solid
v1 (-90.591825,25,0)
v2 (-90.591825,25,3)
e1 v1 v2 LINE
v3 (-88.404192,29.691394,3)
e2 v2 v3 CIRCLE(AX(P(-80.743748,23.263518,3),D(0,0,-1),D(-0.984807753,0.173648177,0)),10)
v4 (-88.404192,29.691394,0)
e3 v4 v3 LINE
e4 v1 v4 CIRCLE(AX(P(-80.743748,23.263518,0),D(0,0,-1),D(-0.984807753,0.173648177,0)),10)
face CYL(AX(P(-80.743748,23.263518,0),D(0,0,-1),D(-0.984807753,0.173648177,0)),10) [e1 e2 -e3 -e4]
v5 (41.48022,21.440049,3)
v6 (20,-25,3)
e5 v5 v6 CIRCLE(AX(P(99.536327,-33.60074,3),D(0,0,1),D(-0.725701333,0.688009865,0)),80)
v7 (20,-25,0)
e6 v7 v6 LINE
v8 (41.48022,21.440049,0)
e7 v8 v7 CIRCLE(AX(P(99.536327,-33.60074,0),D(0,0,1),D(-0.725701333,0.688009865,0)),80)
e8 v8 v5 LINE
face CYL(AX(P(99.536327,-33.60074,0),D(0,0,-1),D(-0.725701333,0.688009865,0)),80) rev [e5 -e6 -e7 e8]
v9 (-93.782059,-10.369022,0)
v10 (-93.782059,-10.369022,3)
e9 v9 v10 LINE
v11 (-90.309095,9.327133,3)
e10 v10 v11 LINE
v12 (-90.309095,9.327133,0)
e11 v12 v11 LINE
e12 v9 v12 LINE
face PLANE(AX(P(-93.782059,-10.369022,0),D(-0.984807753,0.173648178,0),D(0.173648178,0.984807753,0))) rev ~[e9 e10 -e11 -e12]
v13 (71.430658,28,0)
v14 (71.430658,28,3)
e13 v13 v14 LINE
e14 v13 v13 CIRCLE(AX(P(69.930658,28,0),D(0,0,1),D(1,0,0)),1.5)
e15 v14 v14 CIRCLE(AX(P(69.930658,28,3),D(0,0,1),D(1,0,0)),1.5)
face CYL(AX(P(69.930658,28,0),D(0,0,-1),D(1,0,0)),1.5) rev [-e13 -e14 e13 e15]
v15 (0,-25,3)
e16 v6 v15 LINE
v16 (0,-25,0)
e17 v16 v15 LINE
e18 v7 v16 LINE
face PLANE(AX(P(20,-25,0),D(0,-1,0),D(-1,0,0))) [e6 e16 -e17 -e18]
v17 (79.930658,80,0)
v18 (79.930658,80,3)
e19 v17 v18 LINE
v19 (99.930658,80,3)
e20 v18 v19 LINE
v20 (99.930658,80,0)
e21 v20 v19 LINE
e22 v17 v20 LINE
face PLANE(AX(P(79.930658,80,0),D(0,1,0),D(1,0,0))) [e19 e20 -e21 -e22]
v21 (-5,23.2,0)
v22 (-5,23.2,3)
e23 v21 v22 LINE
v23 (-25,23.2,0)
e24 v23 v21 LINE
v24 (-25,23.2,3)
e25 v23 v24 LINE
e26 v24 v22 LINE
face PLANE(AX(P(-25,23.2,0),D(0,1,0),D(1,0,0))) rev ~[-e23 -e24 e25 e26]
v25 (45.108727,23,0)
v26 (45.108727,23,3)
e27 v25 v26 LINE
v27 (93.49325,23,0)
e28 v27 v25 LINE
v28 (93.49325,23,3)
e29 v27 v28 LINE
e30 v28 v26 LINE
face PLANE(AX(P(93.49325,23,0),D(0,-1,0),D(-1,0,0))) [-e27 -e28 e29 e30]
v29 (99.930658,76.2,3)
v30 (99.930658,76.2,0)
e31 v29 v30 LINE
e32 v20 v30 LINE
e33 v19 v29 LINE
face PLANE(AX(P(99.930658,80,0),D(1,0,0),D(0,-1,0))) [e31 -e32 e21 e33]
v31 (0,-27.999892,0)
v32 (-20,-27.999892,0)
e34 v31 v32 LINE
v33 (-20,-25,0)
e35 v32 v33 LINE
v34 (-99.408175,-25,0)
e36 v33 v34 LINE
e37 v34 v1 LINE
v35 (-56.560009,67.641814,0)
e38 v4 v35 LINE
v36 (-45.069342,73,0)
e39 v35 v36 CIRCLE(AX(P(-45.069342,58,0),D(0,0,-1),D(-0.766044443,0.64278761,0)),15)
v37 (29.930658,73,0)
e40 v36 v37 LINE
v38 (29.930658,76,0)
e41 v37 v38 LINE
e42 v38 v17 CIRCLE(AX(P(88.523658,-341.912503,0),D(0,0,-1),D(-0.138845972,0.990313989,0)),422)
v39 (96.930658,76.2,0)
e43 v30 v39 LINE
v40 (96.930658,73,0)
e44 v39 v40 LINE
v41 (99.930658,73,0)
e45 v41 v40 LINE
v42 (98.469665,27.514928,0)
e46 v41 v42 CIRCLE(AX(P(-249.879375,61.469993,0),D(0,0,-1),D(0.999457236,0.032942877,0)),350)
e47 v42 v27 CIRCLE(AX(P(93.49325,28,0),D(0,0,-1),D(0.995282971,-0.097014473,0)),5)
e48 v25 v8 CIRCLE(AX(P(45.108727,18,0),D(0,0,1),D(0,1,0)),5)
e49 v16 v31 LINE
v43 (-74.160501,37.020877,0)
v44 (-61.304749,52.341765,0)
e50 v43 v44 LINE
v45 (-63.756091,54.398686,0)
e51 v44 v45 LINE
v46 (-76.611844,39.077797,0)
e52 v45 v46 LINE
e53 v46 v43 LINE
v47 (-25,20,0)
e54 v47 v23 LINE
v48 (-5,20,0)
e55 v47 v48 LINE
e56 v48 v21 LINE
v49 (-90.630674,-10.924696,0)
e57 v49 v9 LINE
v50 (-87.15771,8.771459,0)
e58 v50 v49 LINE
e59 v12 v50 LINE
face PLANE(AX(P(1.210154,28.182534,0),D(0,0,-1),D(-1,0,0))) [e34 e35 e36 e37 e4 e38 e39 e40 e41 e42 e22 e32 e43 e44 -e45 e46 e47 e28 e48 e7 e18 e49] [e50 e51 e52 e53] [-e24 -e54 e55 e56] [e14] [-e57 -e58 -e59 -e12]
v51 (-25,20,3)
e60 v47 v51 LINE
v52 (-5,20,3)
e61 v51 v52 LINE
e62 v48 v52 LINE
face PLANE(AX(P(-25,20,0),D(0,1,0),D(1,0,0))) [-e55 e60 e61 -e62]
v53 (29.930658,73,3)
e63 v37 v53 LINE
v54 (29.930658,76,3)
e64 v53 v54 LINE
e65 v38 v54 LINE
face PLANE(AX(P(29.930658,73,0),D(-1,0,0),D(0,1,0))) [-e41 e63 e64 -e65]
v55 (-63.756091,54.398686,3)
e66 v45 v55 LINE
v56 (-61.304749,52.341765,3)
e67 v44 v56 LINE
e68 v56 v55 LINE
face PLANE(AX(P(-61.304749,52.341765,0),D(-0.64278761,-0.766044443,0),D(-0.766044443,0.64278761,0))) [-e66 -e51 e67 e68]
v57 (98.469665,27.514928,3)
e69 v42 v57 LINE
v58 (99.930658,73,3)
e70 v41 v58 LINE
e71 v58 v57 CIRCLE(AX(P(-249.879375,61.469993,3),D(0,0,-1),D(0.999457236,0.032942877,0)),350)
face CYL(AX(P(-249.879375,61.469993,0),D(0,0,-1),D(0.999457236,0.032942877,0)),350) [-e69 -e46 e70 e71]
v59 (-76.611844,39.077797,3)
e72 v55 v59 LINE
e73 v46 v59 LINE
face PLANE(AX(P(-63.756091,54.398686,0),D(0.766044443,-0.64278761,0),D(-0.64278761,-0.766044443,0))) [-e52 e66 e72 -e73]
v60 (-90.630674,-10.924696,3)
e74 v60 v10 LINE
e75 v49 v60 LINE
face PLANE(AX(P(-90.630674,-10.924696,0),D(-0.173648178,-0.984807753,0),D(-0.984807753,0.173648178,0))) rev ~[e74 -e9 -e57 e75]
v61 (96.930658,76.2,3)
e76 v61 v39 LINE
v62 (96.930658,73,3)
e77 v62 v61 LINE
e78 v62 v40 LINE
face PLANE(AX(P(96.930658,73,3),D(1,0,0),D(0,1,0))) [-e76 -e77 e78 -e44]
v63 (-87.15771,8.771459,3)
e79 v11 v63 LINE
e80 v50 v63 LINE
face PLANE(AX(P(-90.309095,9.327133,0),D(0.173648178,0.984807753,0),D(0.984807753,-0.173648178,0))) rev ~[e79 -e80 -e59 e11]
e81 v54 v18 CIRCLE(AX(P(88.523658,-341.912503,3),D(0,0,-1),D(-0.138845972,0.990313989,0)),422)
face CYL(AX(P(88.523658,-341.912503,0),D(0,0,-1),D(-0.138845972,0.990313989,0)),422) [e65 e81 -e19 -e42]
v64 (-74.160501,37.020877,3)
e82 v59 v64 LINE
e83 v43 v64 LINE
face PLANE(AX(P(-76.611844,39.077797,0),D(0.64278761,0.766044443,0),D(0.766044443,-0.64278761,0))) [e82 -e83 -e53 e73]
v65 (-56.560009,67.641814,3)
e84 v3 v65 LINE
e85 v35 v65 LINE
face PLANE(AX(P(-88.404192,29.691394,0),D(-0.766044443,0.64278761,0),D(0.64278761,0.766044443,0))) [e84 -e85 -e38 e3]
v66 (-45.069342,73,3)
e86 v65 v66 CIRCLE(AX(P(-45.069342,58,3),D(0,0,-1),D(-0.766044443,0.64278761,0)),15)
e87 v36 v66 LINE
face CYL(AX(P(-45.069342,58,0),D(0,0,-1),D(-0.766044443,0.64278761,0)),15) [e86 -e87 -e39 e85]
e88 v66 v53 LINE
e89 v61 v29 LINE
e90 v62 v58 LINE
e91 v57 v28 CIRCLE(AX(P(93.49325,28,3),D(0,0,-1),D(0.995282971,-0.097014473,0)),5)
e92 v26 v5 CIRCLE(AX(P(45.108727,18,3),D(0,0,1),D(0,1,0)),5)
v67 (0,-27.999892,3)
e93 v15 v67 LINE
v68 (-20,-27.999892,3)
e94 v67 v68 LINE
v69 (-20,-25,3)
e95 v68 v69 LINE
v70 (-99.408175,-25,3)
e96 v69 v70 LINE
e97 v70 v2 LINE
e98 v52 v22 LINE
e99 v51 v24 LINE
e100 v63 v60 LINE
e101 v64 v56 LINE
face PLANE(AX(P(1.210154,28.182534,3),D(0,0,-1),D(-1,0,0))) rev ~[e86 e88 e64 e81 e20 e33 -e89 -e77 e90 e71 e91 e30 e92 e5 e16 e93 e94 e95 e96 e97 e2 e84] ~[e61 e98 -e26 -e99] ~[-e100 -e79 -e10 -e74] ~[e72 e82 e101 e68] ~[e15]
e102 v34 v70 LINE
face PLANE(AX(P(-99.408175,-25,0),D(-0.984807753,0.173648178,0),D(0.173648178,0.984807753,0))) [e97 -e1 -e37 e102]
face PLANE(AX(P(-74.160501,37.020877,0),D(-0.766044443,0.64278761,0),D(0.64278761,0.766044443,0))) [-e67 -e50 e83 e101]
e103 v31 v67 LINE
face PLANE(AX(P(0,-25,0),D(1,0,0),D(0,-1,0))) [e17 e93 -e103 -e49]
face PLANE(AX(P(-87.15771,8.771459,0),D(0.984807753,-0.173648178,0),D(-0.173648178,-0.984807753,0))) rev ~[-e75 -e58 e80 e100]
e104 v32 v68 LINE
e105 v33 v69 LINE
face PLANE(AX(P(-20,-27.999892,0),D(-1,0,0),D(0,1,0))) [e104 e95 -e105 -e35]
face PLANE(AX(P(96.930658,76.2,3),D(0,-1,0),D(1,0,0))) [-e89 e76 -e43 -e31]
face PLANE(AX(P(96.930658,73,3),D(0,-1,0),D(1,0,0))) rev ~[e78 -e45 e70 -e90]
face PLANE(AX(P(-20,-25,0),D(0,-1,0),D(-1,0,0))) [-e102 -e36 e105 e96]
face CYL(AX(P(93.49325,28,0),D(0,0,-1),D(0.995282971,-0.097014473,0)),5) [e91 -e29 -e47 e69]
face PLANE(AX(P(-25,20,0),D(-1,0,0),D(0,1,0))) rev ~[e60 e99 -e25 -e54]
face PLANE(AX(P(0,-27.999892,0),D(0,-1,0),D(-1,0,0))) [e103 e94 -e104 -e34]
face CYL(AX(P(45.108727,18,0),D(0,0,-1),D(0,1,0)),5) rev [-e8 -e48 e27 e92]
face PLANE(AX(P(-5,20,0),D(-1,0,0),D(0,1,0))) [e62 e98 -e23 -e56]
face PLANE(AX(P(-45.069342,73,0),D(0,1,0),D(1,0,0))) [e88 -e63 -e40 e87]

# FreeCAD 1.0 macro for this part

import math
import FreeCAD as App
import Part
import Sketcher
from FreeCAD import Vector
Q = App.Units.Quantity

doc = App.newDocument("Part")
body = doc.addObject("PartDesign::Body", "Body")

# Sketch on XY plane
sketch1 = body.newObject("Sketcher::SketchObject", "Sketch")
sketch1.AttachmentSupport = (doc.getObject("XY_Plane"), [""])
sketch1.MapMode = "FlatFace"
sketch1.addGeometry([
    Part.LineSegment(Vector(29.9, 73, 0), Vector(-45.1, 73, 0)),  # 0
    Part.ArcOfCircle(Part.Circle(Vector(-45.1, 58, 0), Vector(0, 0, 1), 15), math.radians(90), math.radians(140)),  # 1
    Part.LineSegment(Vector(-56.6, 67.6, 0), Vector(-88.4, 29.7, 0)),  # 2
    Part.ArcOfCircle(Part.Circle(Vector(-80.7, 23.3, 0), Vector(0, 0, 1), 10), math.radians(140), math.radians(170)),  # 3
    Part.LineSegment(Vector(-90.6, 25, 0), Vector(-99.4, -25, 0)),  # 4
    Part.LineSegment(Vector(-99.4, -25, 0), Vector(-20, -25, 0)),  # 5
    Part.LineSegment(Vector(-20, -25, 0), Vector(-20, -28, 0)),  # 6
    Part.LineSegment(Vector(-20, -28, 0), Vector(0, -28, 0)),  # 7
    Part.LineSegment(Vector(0, -28, 0), Vector(0, -25, 0)),  # 8
    Part.LineSegment(Vector(0, -25, 0), Vector(20, -25, 0)),  # 9
    Part.ArcOfCircle(Part.Circle(Vector(99.5, -33.6, 0), Vector(0, 0, 1), 80), math.radians(137), math.radians(174)),  # 10
    Part.ArcOfCircle(Part.Circle(Vector(45.1, 18, 0), Vector(0, 0, 1), 5), math.radians(90), math.radians(137)),  # 11
    Part.LineSegment(Vector(45.1, 23, 0), Vector(93.5, 23, 0)),  # 12
    Part.ArcOfCircle(Part.Circle(Vector(93.5, 28, 0), Vector(0, 0, 1), 5), math.radians(-90), math.radians(-6)),  # 13
    Part.ArcOfCircle(Part.Circle(Vector(-249.9, 61.5, 0), Vector(0, 0, 1), 350), math.radians(-5.57), math.radians(1.89)),  # 14
    Part.LineSegment(Vector(99.9, 73, 0), Vector(99.9, 80, 0)),  # 15
    Part.LineSegment(Vector(99.9, 80, 0), Vector(79.9, 80, 0)),  # 16
    Part.ArcOfCircle(Part.Circle(Vector(88.5, -341.9, 0), Vector(0, 0, 1), 422), math.radians(91.17), math.radians(97.98)),  # 17
    Part.LineSegment(Vector(29.9, 76, 0), Vector(29.9, 73, 0)),  # 18
    Part.LineSegment(Vector(-93.8, -10.4, 0), Vector(-90.3, 9.3, 0)),  # 19
    Part.LineSegment(Vector(-90.3, 9.3, 0), Vector(-87.2, 8.8, 0)),  # 20
    Part.LineSegment(Vector(-87.2, 8.8, 0), Vector(-90.6, -10.9, 0)),  # 21
    Part.LineSegment(Vector(-90.6, -10.9, 0), Vector(-93.8, -10.4, 0)),  # 22
    Part.LineSegment(Vector(-25, 20, 0), Vector(-25, 23.2, 0)),  # 23
    Part.LineSegment(Vector(-25, 23.2, 0), Vector(-5, 23.2, 0)),  # 24
    Part.LineSegment(Vector(-5, 23.2, 0), Vector(-5, 20, 0)),  # 25
    Part.LineSegment(Vector(-5, 20, 0), Vector(-25, 20, 0)),  # 26
    Part.Circle(Vector(69.9, 28, 0), Vector(0, 0, 1), 1.5),  # 27
    Part.LineSegment(Vector(-76.6, 39.1, 0), Vector(-63.8, 54.4, 0)),  # 28
    Part.LineSegment(Vector(-63.8, 54.4, 0), Vector(-61.3, 52.3, 0)),  # 29
    Part.LineSegment(Vector(-61.3, 52.3, 0), Vector(-74.2, 37, 0)),  # 30
    Part.LineSegment(Vector(-74.2, 37, 0), Vector(-76.6, 39.1, 0)),  # 31
], False)
sketch1.addConstraint([
    Sketcher.Constraint("Tangent", 0, 2, 1, 1),
    Sketcher.Constraint("Tangent", 1, 2, 2, 1),
    Sketcher.Constraint("Tangent", 2, 2, 3, 1),
    Sketcher.Constraint("Tangent", 3, 2, 4, 1),
    Sketcher.Constraint("Coincident", 4, 2, 5, 1),
    Sketcher.Constraint("Coincident", 5, 2, 6, 1),
    Sketcher.Constraint("Coincident", 6, 2, 7, 1),
    Sketcher.Constraint("Coincident", 7, 2, 8, 1),
    Sketcher.Constraint("Coincident", 8, 2, 9, 1),
    Sketcher.Constraint("Coincident", 9, 2, 10, 2),
    Sketcher.Constraint("Tangent", 10, 1, 11, 2),
    Sketcher.Constraint("Tangent", 11, 1, 12, 1),
    Sketcher.Constraint("Tangent", 12, 2, 13, 1),
    Sketcher.Constraint("Tangent", 13, 2, 14, 1),
    Sketcher.Constraint("Coincident", 14, 2, 15, 1),
    Sketcher.Constraint("Coincident", 15, 2, 16, 1),
    Sketcher.Constraint("Coincident", 16, 2, 17, 1),
    Sketcher.Constraint("Coincident", 17, 2, 18, 1),
    Sketcher.Constraint("Coincident", 18, 2, 0, 1),
    Sketcher.Constraint("Coincident", 19, 2, 20, 1),
    Sketcher.Constraint("Coincident", 20, 2, 21, 1),
    Sketcher.Constraint("Coincident", 21, 2, 22, 1),
    Sketcher.Constraint("Coincident", 22, 2, 19, 1),
    Sketcher.Constraint("Coincident", 23, 2, 24, 1),
    Sketcher.Constraint("Coincident", 24, 2, 25, 1),
    Sketcher.Constraint("Coincident", 25, 2, 26, 1),
    Sketcher.Constraint("Coincident", 26, 2, 23, 1),
    Sketcher.Constraint("Coincident", 28, 2, 29, 1),
    Sketcher.Constraint("Coincident", 29, 2, 30, 1),
    Sketcher.Constraint("Coincident", 30, 2, 31, 1),
    Sketcher.Constraint("Coincident", 31, 2, 28, 1),
    Sketcher.Constraint("Horizontal", 0),
    Sketcher.Constraint("Horizontal", 5),
    Sketcher.Constraint("Vertical", 6),
    Sketcher.Constraint("Horizontal", 7),
    Sketcher.Constraint("Vertical", 8),
    Sketcher.Constraint("Horizontal", 9),
    Sketcher.Constraint("Horizontal", 12),
    Sketcher.Constraint("Vertical", 15),
    Sketcher.Constraint("Horizontal", 16),
    Sketcher.Constraint("Vertical", 18),
    Sketcher.Constraint("Vertical", 23),
    Sketcher.Constraint("Horizontal", 24),
    Sketcher.Constraint("Vertical", 25),
    Sketcher.Constraint("Horizontal", 26),
    Sketcher.Constraint("Equal", 11, 13),
    Sketcher.Constraint("Symmetric", 5, 2, 9, 2, -2),
    Sketcher.Constraint("PointOnObject", 7, 2, -2),
    Sketcher.Constraint("Parallel", 4, 19),
    Sketcher.Constraint("Perpendicular", 19, 20),
    Sketcher.Constraint("Perpendicular", 20, 21),
    Sketcher.Constraint("Perpendicular", 21, 22),
    Sketcher.Constraint("Parallel", 2, 28),
    Sketcher.Constraint("Perpendicular", 28, 29),
    Sketcher.Constraint("Perpendicular", 29, 30),
    Sketcher.Constraint("Perpendicular", 30, 31),
    Sketcher.Constraint("Horizontal", 13, 3, 27, 3),
    Sketcher.Constraint("Horizontal", 0, 2, 14, 2),
    Sketcher.Constraint("Equal", 9, 16),
    Sketcher.Constraint("Equal", 16, 24),
    Sketcher.Constraint("Equal", 21, 28),
    Sketcher.Constraint("Equal", 22, 29),
    Sketcher.Constraint("Diameter", 27, 3.0),
    Sketcher.Constraint("Radius", 1, 15.0),
    Sketcher.Constraint("Radius", 3, 10.0),
    Sketcher.Constraint("Radius", 10, 80.0),
    Sketcher.Constraint("Radius", 11, 5.0),
    Sketcher.Constraint("Radius", 14, 350.0),
    Sketcher.Constraint("Radius", 17, 422.0),
    Sketcher.Constraint("DistanceX", 0, 2, 0, 1, 75.0),
    Sketcher.Constraint("DistanceX", 7, 1, 7, 2, 20.0),
    Sketcher.Constraint("DistanceY", 15, 1, 15, 2, 7.0),
    Sketcher.Constraint("DistanceY", 18, 2, 18, 1, 3.0),
    Sketcher.Constraint("Angle", 2, Q("-130 deg")),
    Sketcher.Constraint("Angle", 4, Q("-100 deg")),
    Sketcher.Constraint("Distance", 19, 20.0),
    Sketcher.Constraint("DistanceY", 23, 1, 23, 2, 3.2),
    Sketcher.Constraint("DistanceY", -1, 1, 1, 3, 58.0),
    Sketcher.Constraint("DistanceY", -1, 1, 11, 3, 18.0),
    Sketcher.Constraint("DistanceY", -1, 1, 3, 2, 25.0),
    Sketcher.Constraint("DistanceY", 4, 2, -1, 1, 25.0),
    Sketcher.Constraint("DistanceX", 23, 2, -1, 1, 25.0),
    Sketcher.Constraint("DistanceY", -1, 1, 25, 2, 20.0),
    Sketcher.Constraint("DistanceX", 1, 3, 27, 3, 115.0),
    Sketcher.Constraint("DistanceX", 27, 3, 14, 2, 30.0),
    Sketcher.Constraint("Distance", 20, 3.2),
    Sketcher.Constraint("DistanceX", 3, 3, 29, 2, 19.438999),
    Sketcher.Constraint("DistanceY", 6, 2, 6, 1, 2.999892),
    Sketcher.Constraint("DistanceX", 30, 2, -1, 1, 74.160501),
    Sketcher.Constraint("DistanceX", 11, 3, 10, 3, 54.4276),
    Sketcher.Constraint("DistanceX", 4, 2, 21, 2, 8.777501),
    Sketcher.Constraint("DistanceX", 12, 1, 12, 2, 48.384523),
    Sketcher.Constraint("DistanceY", -1, 1, 20, 2, 8.771459),
    Sketcher.Constraint("DistanceY", 28, 2, 1, 2, 13.243128),
])
pad1 = body.newObject("PartDesign::Pad", "Pad")
pad1.Profile = sketch1
pad1.Length = 3

# Sketch on XY plane
sketch2 = body.newObject("Sketcher::SketchObject", "Sketch001")
sketch2.AttachmentSupport = (doc.getObject("XY_Plane"), [""])
sketch2.MapMode = "FlatFace"
sketch2.AttachmentOffset = App.Placement(Vector(0, 0, 3), App.Rotation())
sketch2.addGeometry([
    Part.LineSegment(Vector(96.9, 76.2, 0), Vector(96.9, 73, 0)),
    Part.LineSegment(Vector(96.9, 73, 0), Vector(99.9, 73, 0)),
    Part.LineSegment(Vector(99.9, 73, 0), Vector(99.9, 76.2, 0)),
    Part.LineSegment(Vector(99.9, 76.2, 0), Vector(96.9, 76.2, 0)),
], False)
sketch2.addConstraint([
    Sketcher.Constraint("Coincident", 0, 2, 1, 1),
    Sketcher.Constraint("Coincident", 1, 2, 2, 1),
    Sketcher.Constraint("Coincident", 2, 2, 3, 1),
    Sketcher.Constraint("Coincident", 3, 2, 0, 1),
    Sketcher.Constraint("Vertical", 0),
    Sketcher.Constraint("Horizontal", 1),
    Sketcher.Constraint("Vertical", 2),
    Sketcher.Constraint("Horizontal", 3),
    Sketcher.Constraint("DistanceX", 1, 1, 1, 2, 3.0),
    Sketcher.Constraint("DistanceY", 0, 2, 0, 1, 3.2),
    Sketcher.Constraint("DistanceY", -1, 1, 0, 2, 73.0),
    Sketcher.Constraint("DistanceX", -1, 1, 0, 2, 96.930658),
])
pocket1 = body.newObject("PartDesign::Pocket", "Pocket")
pocket1.Profile = sketch2
pocket1.Length = 10

doc.recompute()
